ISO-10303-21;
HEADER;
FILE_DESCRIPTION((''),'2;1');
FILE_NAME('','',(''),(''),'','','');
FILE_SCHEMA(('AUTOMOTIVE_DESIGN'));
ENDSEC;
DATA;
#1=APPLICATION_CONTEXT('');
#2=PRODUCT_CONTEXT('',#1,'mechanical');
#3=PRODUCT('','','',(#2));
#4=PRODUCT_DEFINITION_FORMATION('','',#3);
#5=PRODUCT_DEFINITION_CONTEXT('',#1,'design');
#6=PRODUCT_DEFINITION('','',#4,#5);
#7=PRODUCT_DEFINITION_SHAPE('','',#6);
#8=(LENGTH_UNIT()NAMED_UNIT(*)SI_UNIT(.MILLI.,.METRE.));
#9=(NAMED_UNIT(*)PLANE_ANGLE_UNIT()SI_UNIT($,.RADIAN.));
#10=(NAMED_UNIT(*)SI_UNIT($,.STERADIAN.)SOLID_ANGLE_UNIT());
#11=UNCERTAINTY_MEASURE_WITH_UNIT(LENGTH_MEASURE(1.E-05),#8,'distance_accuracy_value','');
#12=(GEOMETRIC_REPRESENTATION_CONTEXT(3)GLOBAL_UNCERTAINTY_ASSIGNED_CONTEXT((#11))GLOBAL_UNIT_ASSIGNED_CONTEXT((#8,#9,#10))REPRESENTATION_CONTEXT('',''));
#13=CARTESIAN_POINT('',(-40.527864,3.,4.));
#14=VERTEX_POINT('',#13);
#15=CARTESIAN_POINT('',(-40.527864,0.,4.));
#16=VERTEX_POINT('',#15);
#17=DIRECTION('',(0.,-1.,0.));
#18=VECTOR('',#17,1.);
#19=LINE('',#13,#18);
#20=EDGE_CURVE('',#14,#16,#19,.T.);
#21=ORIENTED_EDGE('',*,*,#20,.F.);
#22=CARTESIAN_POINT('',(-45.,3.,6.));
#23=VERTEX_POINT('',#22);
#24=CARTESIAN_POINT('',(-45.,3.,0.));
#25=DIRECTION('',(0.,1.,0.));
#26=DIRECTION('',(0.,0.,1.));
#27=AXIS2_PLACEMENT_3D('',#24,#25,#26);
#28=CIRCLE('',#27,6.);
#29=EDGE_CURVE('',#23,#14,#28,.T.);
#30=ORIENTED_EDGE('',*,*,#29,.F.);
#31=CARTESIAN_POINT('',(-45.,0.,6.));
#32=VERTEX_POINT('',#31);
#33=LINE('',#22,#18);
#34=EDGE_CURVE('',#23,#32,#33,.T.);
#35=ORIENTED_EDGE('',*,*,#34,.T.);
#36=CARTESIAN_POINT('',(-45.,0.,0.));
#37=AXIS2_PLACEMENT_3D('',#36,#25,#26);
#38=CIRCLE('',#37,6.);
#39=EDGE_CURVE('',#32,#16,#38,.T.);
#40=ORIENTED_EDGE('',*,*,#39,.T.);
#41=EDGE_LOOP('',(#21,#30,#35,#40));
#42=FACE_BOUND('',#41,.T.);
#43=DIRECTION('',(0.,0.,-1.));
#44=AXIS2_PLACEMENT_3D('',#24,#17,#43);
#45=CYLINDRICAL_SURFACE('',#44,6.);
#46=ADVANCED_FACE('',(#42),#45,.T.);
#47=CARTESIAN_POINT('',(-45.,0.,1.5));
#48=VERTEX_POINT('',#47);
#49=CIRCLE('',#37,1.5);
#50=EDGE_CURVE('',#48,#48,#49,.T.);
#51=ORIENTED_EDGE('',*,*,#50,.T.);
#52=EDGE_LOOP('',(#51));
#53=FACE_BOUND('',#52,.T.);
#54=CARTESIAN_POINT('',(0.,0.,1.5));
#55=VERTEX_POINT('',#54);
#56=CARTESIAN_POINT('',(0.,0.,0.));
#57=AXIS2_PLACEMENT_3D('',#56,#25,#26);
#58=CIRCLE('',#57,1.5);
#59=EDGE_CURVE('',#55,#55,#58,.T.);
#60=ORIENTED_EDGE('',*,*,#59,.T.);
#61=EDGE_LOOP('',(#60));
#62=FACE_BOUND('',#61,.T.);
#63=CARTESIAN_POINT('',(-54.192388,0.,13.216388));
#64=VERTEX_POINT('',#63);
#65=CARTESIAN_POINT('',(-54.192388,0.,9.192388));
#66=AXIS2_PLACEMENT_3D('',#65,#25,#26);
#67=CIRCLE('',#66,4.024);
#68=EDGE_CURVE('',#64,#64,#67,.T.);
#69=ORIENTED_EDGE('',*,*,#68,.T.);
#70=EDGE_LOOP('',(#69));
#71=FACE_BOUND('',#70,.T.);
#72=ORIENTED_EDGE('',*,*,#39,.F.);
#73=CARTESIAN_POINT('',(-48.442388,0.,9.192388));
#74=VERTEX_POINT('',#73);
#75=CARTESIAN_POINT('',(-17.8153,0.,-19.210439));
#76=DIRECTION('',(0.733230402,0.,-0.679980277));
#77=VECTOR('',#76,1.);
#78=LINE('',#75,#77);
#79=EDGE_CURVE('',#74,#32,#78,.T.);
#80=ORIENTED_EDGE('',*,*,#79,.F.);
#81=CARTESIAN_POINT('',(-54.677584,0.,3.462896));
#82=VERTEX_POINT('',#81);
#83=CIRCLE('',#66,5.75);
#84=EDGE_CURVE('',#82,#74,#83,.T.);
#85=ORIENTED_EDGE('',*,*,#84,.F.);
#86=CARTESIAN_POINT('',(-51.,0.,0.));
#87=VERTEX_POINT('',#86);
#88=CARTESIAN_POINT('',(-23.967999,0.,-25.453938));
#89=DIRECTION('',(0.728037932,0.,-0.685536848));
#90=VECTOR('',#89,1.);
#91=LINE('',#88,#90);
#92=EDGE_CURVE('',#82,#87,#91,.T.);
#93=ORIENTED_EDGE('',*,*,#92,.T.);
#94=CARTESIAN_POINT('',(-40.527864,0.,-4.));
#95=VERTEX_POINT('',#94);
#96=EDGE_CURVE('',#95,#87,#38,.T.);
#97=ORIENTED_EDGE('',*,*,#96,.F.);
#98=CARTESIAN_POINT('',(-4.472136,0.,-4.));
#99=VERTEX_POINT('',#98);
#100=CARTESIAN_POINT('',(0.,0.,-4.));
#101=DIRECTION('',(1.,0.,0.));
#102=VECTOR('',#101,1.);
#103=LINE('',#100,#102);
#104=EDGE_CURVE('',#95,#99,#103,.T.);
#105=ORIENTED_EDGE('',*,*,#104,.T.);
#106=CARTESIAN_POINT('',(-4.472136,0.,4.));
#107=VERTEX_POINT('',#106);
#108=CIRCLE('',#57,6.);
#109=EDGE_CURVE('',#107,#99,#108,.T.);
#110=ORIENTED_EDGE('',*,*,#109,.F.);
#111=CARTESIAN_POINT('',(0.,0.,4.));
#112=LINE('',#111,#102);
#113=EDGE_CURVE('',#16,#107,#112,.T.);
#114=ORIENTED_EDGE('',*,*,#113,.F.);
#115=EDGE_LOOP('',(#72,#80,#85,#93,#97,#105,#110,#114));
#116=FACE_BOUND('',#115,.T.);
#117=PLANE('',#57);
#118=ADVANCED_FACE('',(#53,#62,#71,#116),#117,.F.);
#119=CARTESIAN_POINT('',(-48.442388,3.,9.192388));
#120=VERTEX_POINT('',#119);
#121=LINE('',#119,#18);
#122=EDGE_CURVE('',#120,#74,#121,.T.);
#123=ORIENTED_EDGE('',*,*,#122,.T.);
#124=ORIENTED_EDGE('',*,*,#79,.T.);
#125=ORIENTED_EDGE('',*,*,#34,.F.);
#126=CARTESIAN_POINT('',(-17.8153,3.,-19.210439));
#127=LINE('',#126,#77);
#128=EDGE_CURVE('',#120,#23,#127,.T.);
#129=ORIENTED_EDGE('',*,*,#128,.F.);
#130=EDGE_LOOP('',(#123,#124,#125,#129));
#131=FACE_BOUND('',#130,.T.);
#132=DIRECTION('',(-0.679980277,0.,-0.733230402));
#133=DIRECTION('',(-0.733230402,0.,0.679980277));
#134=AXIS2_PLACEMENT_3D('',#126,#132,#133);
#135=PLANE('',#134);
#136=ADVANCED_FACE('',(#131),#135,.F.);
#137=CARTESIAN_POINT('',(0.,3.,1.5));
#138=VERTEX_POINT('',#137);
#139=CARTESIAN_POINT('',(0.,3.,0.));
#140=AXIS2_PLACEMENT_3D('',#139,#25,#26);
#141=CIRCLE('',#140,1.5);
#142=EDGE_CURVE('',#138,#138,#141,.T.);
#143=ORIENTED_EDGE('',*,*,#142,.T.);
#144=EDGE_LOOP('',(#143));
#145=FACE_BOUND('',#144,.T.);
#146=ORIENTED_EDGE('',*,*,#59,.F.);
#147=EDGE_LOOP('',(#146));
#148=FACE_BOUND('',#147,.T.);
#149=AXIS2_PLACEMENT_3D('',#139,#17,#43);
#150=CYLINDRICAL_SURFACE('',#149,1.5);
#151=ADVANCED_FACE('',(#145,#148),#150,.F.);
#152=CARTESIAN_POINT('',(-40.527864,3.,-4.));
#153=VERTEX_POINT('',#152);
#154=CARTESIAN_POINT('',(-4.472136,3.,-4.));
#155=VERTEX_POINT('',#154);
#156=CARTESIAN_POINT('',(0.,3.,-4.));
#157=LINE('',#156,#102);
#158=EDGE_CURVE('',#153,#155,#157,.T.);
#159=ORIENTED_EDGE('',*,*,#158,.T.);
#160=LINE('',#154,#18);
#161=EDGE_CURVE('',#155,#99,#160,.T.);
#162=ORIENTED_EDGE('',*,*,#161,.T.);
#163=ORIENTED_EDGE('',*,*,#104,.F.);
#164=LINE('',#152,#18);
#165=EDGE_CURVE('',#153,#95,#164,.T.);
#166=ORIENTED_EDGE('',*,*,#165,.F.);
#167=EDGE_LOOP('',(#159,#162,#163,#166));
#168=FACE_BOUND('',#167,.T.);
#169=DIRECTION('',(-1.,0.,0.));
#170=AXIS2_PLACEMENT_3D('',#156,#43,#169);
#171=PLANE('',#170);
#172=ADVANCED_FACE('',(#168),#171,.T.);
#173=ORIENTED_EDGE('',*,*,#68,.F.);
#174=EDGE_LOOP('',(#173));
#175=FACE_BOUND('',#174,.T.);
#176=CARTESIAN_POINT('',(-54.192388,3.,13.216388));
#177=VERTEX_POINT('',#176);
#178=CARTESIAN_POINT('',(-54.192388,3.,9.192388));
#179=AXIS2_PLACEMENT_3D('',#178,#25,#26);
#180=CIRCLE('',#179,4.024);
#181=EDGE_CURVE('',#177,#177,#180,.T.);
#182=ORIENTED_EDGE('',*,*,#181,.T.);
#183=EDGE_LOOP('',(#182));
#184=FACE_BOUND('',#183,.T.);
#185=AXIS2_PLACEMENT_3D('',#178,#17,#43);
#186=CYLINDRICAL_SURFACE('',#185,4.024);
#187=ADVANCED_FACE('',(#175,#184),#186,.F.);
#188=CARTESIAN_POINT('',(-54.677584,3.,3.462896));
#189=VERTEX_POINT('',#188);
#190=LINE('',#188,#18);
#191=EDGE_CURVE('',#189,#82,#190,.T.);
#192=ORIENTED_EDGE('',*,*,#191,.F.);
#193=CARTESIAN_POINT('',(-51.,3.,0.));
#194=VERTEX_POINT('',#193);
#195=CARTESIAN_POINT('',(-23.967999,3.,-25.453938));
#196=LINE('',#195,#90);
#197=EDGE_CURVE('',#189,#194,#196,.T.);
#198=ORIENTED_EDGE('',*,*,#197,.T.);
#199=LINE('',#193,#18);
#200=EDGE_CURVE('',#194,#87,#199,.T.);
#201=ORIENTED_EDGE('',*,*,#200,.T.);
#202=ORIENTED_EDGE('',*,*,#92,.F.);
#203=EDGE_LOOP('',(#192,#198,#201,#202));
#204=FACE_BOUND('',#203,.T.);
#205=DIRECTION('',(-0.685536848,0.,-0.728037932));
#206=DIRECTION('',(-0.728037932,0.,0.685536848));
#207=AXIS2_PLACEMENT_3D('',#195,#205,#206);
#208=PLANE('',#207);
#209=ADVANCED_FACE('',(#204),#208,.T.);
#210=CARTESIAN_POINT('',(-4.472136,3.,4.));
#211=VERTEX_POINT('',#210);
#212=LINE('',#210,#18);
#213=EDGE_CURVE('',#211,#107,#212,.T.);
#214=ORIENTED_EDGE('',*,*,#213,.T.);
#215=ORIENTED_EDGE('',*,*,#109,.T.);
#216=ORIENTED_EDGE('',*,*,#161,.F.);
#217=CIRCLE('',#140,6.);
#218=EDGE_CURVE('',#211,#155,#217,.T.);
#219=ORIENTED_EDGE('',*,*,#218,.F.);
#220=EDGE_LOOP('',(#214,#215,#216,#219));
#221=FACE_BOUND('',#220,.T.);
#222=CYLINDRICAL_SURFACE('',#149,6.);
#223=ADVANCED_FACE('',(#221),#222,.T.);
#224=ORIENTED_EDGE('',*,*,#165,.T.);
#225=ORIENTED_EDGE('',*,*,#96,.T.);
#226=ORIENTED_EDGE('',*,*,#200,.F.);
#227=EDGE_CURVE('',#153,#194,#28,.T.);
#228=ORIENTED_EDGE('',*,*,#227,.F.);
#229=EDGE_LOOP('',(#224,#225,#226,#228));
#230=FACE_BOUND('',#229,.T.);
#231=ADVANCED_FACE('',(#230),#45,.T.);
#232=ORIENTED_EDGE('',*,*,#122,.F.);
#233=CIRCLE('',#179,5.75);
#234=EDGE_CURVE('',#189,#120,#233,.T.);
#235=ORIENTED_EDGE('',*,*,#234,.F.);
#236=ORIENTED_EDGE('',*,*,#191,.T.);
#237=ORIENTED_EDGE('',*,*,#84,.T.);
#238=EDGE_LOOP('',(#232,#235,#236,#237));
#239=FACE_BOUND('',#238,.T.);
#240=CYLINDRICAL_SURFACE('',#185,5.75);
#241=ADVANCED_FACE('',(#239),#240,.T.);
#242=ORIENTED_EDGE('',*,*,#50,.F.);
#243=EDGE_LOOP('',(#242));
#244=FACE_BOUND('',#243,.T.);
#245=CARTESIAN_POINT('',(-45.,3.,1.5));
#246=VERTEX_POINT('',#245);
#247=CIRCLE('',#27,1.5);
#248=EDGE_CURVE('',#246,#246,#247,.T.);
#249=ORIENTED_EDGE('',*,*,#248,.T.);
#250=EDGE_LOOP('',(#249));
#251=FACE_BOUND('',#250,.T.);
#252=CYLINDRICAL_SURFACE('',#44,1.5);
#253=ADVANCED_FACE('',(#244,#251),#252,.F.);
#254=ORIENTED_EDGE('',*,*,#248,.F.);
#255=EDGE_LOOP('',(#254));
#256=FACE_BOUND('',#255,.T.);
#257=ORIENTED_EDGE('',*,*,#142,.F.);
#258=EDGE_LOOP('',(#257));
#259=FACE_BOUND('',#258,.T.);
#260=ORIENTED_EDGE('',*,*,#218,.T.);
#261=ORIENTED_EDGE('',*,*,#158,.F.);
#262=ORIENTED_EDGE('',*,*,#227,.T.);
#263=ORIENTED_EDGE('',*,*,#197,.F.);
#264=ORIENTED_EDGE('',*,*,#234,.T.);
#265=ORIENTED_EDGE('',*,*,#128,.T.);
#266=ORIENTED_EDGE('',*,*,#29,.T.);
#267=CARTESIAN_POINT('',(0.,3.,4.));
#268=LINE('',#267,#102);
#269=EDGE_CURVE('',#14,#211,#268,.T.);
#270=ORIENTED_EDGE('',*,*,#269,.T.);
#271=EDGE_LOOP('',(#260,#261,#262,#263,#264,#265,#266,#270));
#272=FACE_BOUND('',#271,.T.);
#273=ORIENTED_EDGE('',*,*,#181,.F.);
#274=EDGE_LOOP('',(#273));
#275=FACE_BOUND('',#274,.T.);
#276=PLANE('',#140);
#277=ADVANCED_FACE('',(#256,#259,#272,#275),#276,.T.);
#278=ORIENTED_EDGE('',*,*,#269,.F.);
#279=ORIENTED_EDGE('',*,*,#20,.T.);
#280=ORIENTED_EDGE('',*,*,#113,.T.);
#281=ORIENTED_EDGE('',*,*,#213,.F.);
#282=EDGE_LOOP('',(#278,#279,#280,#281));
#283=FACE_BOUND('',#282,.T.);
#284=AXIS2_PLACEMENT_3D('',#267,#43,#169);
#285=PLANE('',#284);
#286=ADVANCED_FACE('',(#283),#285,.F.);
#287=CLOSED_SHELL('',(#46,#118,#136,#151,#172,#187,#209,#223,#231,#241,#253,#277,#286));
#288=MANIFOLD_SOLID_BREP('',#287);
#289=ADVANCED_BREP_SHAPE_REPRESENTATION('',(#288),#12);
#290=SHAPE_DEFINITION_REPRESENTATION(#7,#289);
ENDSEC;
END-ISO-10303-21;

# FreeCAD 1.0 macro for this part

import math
import FreeCAD as App
import Part
import Sketcher
from FreeCAD import Vector

doc = App.newDocument("Part")
params = doc.addObject("Spreadsheet::Sheet", "Params")
for row, (alias, value) in enumerate([
    ("sketch1_diameter", "3 mm"),
    ("sketch1_radius", "6 mm"),
    ("sketch1_radius2", "5.75 mm"),
    ("pad1_length", "3 mm"),
], start=1):
    params.set(f"A{row}", alias)
    params.set(f"B{row}", "=" + value)
    params.setAlias(f"B{row}", alias)

body = doc.addObject("PartDesign::Body", "Body")

sketch1 = body.newObject("Sketcher::SketchObject", "Sketch")
sketch1.AttachmentSupport = (doc.getObject("XZ_Plane"), [""])
sketch1.MapMode = "FlatFace"
sketch1.addGeometry([
    Part.LineSegment(Vector(-4.5, -4, 0), Vector(-40.5, -4, 0)),
    Part.ArcOfCircle(Part.Circle(Vector(-45, 0, 0), Vector(0, 0, 1), 6), math.radians(180), math.radians(318)),
    Part.LineSegment(Vector(-51, 0, 0), Vector(-54.7, 3.5, 0)),
    Part.ArcOfCircle(Part.Circle(Vector(-54.2, 9.2, 0), Vector(0, 0, 1), 5.8), math.radians(0), math.radians(265)),
    Part.LineSegment(Vector(-48.4, 9.2, 0), Vector(-45, 6, 0)),
    Part.ArcOfCircle(Part.Circle(Vector(-45, 0, 0), Vector(0, 0, 1), 6), math.radians(42), math.radians(90)),
    Part.LineSegment(Vector(-40.5, 4, 0), Vector(-4.5, 4, 0)),
    Part.ArcOfCircle(Part.Circle(Vector(0, 0, 0), Vector(0, 0, 1), 6), math.radians(-138), math.radians(138)),
    Part.Circle(Vector(-54.2, 9.2, 0), Vector(0, 0, 1), 4),
    Part.Circle(Vector(-45, 0, 0), Vector(0, 0, 1), 1.5),
    Part.Circle(Vector(0, 0, 0), Vector(0, 0, 1), 1.5),
], False)
sketch1.addConstraint([
    Sketcher.Constraint("Coincident", 0, 2, 1, 2),
    Sketcher.Constraint("Coincident", 1, 1, 2, 1),
    Sketcher.Constraint("Coincident", 2, 2, 3, 2),
    Sketcher.Constraint("Coincident", 3, 1, 4, 1),
    Sketcher.Constraint("Coincident", 4, 2, 5, 2),
    Sketcher.Constraint("Coincident", 5, 1, 6, 1),
    Sketcher.Constraint("Coincident", 6, 2, 7, 2),
    Sketcher.Constraint("Coincident", 7, 1, 0, 1),
    Sketcher.Constraint("Horizontal", 0),
    Sketcher.Constraint("Horizontal", 6),
    Sketcher.Constraint("Coincident", 7, 3, -1, 1),
    Sketcher.Constraint("Coincident", 10, 3, -1, 1),
    Sketcher.Constraint("Coincident", 5, 3, 1, 3),
    Sketcher.Constraint("Coincident", 8, 3, 3, 3),
    Sketcher.Constraint("Coincident", 9, 3, 1, 3),
    Sketcher.Constraint("Equal", 1, 5),
    Sketcher.Constraint("Equal", 5, 7),
    Sketcher.Constraint("Equal", 9, 10),
    Sketcher.Constraint("Symmetric", 0, 2, 5, 1, -1),
    Sketcher.Constraint("PointOnObject", 1, 1, -1),
    Sketcher.Constraint("Horizontal", 8, 3, 3, 1),
    Sketcher.Constraint("Vertical", 9, 3, 4, 2),
    Sketcher.Constraint("Diameter", 9, 3.0),
    Sketcher.Constraint("Radius", 1, 6.0),
    Sketcher.Constraint("Radius", 3, 5.75),
    Sketcher.Constraint("Diameter", 8, 8.048),
    Sketcher.Constraint("DistanceX", 1, 3, -1, 1, 45.0),
    Sketcher.Constraint("DistanceY", 0, 2, -1, 1, 4.0),
    Sketcher.Constraint("DistanceX", 3, 3, -1, 1, 54.192388),
    Sketcher.Constraint("DistanceY", -1, 1, 3, 3, 9.192388),
    Sketcher.Constraint("Distance", 2, 5.051363),
])
sketch1.setExpression("Constraints[22]", "Params.sketch1_diameter")
sketch1.setExpression("Constraints[23]", "Params.sketch1_radius")
sketch1.setExpression("Constraints[24]", "Params.sketch1_radius2")
pad1 = body.newObject("PartDesign::Pad", "Pad")
pad1.Profile = sketch1
pad1.setExpression("Length", "Params.pad1_length")
pad1.Reversed = True

doc.recompute()
